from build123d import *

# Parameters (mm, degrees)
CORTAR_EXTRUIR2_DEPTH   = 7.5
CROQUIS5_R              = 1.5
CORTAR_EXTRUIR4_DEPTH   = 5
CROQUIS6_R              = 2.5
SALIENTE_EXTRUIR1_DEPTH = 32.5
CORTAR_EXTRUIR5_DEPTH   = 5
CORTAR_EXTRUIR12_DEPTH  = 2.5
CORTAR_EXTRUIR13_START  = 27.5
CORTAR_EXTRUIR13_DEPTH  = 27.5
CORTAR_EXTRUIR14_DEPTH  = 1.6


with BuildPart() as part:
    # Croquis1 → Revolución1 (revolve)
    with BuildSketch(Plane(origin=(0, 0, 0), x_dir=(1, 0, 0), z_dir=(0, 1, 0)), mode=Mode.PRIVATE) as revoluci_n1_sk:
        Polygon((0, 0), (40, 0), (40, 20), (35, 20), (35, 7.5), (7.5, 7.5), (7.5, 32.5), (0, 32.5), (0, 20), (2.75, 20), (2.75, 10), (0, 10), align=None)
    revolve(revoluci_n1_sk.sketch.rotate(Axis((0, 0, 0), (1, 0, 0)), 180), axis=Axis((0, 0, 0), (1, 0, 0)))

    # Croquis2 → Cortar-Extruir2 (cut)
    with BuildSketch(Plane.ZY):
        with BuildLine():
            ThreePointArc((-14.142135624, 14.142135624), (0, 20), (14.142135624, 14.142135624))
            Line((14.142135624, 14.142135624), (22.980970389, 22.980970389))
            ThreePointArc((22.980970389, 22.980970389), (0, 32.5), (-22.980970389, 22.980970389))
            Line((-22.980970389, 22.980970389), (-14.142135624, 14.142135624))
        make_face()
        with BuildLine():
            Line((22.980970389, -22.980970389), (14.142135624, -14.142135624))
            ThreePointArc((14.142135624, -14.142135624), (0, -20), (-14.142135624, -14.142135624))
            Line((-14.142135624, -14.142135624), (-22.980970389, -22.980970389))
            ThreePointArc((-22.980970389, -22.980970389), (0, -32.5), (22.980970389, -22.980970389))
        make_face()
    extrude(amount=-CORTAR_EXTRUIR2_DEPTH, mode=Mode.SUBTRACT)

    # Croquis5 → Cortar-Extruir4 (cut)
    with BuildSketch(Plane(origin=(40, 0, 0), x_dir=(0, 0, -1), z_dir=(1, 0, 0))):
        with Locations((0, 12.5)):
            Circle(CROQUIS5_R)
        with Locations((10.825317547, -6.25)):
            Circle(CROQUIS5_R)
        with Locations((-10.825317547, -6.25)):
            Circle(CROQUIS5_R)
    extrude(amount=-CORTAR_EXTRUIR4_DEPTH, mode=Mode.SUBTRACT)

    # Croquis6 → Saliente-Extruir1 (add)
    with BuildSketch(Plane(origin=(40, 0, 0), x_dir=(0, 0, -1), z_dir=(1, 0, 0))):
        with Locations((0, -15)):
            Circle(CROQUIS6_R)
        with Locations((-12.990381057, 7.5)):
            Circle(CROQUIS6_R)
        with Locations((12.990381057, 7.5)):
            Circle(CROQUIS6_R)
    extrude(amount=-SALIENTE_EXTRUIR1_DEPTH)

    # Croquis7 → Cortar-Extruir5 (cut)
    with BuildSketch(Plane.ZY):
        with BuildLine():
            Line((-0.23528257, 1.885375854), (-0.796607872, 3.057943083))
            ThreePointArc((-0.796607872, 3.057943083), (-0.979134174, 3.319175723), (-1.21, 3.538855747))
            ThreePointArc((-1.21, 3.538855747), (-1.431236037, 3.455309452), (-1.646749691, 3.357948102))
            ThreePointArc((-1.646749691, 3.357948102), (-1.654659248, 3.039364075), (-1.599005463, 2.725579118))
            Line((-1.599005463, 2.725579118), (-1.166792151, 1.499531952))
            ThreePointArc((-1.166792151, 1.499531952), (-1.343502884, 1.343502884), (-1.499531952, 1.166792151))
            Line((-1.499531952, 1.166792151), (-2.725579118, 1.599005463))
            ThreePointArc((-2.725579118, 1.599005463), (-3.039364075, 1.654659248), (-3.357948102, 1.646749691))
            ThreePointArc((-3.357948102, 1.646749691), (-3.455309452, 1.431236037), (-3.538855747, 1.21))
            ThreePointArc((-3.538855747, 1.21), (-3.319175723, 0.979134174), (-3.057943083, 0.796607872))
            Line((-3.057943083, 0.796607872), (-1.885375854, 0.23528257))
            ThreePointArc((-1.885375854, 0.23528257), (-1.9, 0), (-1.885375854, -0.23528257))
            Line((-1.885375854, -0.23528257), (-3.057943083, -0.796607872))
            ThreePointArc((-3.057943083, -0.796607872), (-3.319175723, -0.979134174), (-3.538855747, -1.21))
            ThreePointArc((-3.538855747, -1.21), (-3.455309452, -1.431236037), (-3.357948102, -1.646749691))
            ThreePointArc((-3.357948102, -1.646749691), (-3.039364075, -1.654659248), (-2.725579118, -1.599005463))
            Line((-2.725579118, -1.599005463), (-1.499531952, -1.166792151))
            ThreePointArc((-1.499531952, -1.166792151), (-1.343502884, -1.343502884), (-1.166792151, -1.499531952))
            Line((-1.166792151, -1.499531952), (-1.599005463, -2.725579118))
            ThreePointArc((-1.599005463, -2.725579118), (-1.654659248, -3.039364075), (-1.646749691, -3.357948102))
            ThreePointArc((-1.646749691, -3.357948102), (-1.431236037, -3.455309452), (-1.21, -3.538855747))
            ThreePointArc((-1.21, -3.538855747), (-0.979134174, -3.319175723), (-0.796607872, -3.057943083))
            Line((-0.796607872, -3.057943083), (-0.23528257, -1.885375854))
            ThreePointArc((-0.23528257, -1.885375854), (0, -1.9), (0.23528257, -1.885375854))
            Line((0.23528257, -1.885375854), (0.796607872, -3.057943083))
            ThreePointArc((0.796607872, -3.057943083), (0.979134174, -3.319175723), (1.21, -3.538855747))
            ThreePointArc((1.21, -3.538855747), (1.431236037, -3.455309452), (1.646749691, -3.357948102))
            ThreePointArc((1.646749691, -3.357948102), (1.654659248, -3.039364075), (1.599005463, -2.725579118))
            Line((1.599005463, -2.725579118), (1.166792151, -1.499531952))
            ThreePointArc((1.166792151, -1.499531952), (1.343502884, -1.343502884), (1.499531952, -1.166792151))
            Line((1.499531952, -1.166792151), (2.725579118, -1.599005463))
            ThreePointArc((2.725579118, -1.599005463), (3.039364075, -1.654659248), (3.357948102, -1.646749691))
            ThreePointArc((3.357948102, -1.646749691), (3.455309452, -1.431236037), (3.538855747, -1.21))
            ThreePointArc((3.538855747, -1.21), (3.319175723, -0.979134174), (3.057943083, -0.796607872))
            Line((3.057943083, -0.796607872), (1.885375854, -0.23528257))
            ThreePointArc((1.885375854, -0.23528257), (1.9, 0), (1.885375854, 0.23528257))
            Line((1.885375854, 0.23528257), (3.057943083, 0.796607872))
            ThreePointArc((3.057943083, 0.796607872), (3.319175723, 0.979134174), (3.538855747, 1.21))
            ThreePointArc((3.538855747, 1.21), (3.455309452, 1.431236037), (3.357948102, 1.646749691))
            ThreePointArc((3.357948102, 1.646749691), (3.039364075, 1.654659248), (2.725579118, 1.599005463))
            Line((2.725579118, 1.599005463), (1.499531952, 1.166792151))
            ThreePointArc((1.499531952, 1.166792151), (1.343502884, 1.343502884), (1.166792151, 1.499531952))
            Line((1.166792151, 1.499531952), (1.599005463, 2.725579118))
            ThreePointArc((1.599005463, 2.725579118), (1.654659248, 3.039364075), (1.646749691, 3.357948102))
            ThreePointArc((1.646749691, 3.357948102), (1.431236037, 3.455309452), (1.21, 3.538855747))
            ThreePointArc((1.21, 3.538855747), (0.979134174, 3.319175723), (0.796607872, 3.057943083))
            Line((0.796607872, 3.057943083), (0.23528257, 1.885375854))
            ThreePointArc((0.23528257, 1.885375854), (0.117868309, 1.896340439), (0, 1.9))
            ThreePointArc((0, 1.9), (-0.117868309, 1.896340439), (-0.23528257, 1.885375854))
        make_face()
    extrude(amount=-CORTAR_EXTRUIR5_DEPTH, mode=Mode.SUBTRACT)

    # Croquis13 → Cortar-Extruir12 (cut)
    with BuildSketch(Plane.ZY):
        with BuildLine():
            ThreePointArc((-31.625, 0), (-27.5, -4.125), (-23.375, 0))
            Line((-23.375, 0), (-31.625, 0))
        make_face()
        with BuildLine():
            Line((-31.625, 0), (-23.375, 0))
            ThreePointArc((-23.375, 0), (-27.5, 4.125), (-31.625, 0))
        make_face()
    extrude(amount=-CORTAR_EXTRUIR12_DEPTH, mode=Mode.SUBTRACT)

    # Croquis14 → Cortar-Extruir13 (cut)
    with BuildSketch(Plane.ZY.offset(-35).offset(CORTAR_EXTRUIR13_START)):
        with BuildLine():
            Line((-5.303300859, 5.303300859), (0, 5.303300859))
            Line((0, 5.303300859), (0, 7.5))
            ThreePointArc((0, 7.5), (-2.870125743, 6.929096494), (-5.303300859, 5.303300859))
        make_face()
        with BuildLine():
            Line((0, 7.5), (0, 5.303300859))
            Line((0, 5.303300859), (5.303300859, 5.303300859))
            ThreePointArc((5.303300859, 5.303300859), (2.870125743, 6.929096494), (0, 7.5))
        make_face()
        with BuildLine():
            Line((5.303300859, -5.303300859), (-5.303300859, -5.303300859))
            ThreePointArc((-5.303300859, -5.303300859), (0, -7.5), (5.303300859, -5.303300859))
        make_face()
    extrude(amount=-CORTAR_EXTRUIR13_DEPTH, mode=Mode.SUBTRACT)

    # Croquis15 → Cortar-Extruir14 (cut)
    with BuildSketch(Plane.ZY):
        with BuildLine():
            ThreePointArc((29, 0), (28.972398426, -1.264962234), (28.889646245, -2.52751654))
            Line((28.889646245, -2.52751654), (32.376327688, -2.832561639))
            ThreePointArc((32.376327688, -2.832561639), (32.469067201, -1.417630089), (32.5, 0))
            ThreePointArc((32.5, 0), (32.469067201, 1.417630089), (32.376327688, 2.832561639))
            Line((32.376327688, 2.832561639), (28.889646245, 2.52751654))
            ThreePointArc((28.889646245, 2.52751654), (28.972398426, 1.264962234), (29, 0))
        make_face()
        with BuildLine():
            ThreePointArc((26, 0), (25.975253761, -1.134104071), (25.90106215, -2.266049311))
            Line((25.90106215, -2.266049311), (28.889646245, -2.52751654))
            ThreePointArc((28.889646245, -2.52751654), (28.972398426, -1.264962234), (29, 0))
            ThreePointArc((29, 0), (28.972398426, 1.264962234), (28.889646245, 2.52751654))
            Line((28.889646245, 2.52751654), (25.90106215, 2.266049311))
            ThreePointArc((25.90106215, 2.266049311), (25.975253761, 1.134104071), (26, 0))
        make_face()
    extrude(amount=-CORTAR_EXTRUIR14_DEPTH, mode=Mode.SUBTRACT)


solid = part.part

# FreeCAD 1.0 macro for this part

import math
import FreeCAD as App
import Part
import Sketcher
from FreeCAD import Vector
Q = App.Units.Quantity


def add_polygon(sketch, points):
    """Adds a closed chain of lines whose ends are joined by coincident constraints."""
    first, n = sketch.GeometryCount, len(points)
    for a, b in zip(points, points[1:] + points[:1]):
        sketch.addGeometry(Part.LineSegment(App.Vector(*a, 0), App.Vector(*b, 0)), False)
    for i in range(n):
        sketch.addConstraint(Sketcher.Constraint("Coincident", first + i, 2, first + (i + 1) % n, 1))

doc = App.newDocument("Part")
params = doc.addObject("Spreadsheet::Sheet", "Params")
for row, (alias, value) in enumerate([
    ("sketch1_width", "40 mm"),
    ("sketch1_width2", "5 mm"),
    ("sketch1_height", "20 mm"),
    ("sketch1_height2", "25 mm"),
    ("sketch1_width3", "27.5 mm"),
    ("revolution_angle", "360 deg"),
    ("sketch2_radius", "20 mm"),
    ("sketch2_radius2", "32.5 mm"),
    ("pocket1_length", "7.5 mm"),
    ("sketch3_diameter", "3 mm"),
    ("pocket2_length", "5 mm"),
    ("sketch4_diameter", "5 mm"),
    ("pad1_length", "32.5 mm"),
    ("sketch5_radius", "1.9 mm"),
    ("sketch5_radius2", "3.74 mm"),
    ("sketch5_length", "1.3 mm"),
    ("pocket3_length", "5 mm"),
    ("sketch6_diameter", "8.25 mm"),
    ("pocket4_length", "2.5 mm"),
    ("sketch7_radius", "7.5 mm"),
    ("pocket5_length", "27.5 mm"),
    ("sketch8_radius", "26 mm"),
    ("sketch8_radius2", "32.5 mm"),
    ("sketch8_length", "3 mm"),
    ("pocket6_length", "1.6 mm"),
], start=1):
    params.set(f"A{row}", alias)
    params.set(f"B{row}", "=" + value)
    params.setAlias(f"B{row}", alias)

body = doc.addObject("PartDesign::Body", "Body")

# Sketch on XZ plane
sketch1 = body.newObject("Sketcher::SketchObject", "Sketch")
sketch1.AttachmentSupport = (doc.getObject("XZ_Plane"), [""])
sketch1.MapMode = "FlatFace"
add_polygon(sketch1, [(0, 0), (40, 0), (40, -20), (35, -20), (35, -7.5), (7.5, -7.5), (7.5, -32.5), (0, -32.5), (0, -20), (2.8, -20), (2.8, -10), (0, -10)])  # lines 0-11
sketch1.addConstraint(Sketcher.Constraint("Horizontal", 0))
sketch1.addConstraint(Sketcher.Constraint("Vertical", 1))
sketch1.addConstraint(Sketcher.Constraint("Horizontal", 2))
sketch1.addConstraint(Sketcher.Constraint("Vertical", 3))
sketch1.addConstraint(Sketcher.Constraint("Horizontal", 4))
sketch1.addConstraint(Sketcher.Constraint("Vertical", 5))
sketch1.addConstraint(Sketcher.Constraint("Horizontal", 6))
sketch1.addConstraint(Sketcher.Constraint("Vertical", 7))
sketch1.addConstraint(Sketcher.Constraint("Horizontal", 8))
sketch1.addConstraint(Sketcher.Constraint("Vertical", 9))
sketch1.addConstraint(Sketcher.Constraint("Horizontal", 10))
sketch1.addConstraint(Sketcher.Constraint("Vertical", 11))
sketch1.addConstraint(Sketcher.Constraint("Coincident", 11, 2, -1, 1))
sketch1.addConstraint(Sketcher.Constraint("PointOnObject", 6, 2, -2))
sketch1.addConstraint(Sketcher.Constraint("Horizontal", 2, 2, 7, 2))
sketch1.addConstraint(Sketcher.Constraint("Equal", 3, 7))
sketch1.addConstraint(Sketcher.Constraint("Equal", 9, 11))
sketch1.addConstraint(Sketcher.Constraint("DistanceX", 0, 1, 0, 2, 40.0))
sketch1.addConstraint(Sketcher.Constraint("DistanceX", 2, 2, 2, 1, 5.0))
sketch1.addConstraint(Sketcher.Constraint("DistanceY", 1, 2, 1, 1, 20.0))
sketch1.addConstraint(Sketcher.Constraint("DistanceY", 5, 2, 5, 1, 25.0))
sketch1.addConstraint(Sketcher.Constraint("DistanceX", 4, 2, 4, 1, 27.5))
sketch1.addConstraint(Sketcher.Constraint("DistanceX", 8, 1, 8, 2, 2.75))
sketch1.setExpression("Constraints[29]", "Params.sketch1_width")
sketch1.setExpression("Constraints[30]", "Params.sketch1_width2")
sketch1.setExpression("Constraints[31]", "Params.sketch1_height")
sketch1.setExpression("Constraints[32]", "Params.sketch1_height2")
sketch1.setExpression("Constraints[33]", "Params.sketch1_width3")
revolution = body.newObject("PartDesign::Revolution", "Revolution")
revolution.Profile = sketch1
revolution.ReferenceAxis = (sketch1, ["H_Axis"])
revolution.setExpression("Angle", "Params.revolution_angle")

# Sketch on YZ plane
sketch2 = body.newObject("Sketcher::SketchObject", "Sketch001")
sketch2.AttachmentSupport = (doc.getObject("YZ_Plane"), [""])
sketch2.MapMode = "FlatFace"
sketch2.addGeometry(Part.ArcOfCircle(Part.Circle(Vector(0, 0, 0), Vector(0, 0, 1), 20), math.radians(-45), math.radians(45)), False)
sketch2.addGeometry(Part.LineSegment(Vector(14, 14, 0), Vector(23, 23, 0)), False)
sketch2.addGeometry(Part.ArcOfCircle(Part.Circle(Vector(0, 0, 0), Vector(0, 0, 1), 33), math.radians(-45), math.radians(45)), False)
sketch2.addGeometry(Part.LineSegment(Vector(23, -23, 0), Vector(14, -14, 0)), False)
sketch2.addGeometry(Part.LineSegment(Vector(-23, 23, 0), Vector(-14, 14, 0)), False)
sketch2.addGeometry(Part.ArcOfCircle(Part.Circle(Vector(0, 0, 0), Vector(0, 0, 1), 20), math.radians(135), math.radians(225)), False)
sketch2.addGeometry(Part.LineSegment(Vector(-14, -14, 0), Vector(-23, -23, 0)), False)
sketch2.addGeometry(Part.ArcOfCircle(Part.Circle(Vector(0, 0, 0), Vector(0, 0, 1), 33), math.radians(135), math.radians(225)), False)
sketch2.addConstraint(Sketcher.Constraint("Coincident", 0, 2, 1, 1))
sketch2.addConstraint(Sketcher.Constraint("Coincident", 1, 2, 2, 2))
sketch2.addConstraint(Sketcher.Constraint("Coincident", 2, 1, 3, 1))
sketch2.addConstraint(Sketcher.Constraint("Coincident", 3, 2, 0, 1))
sketch2.addConstraint(Sketcher.Constraint("Coincident", 4, 2, 5, 1))
sketch2.addConstraint(Sketcher.Constraint("Coincident", 5, 2, 6, 1))
sketch2.addConstraint(Sketcher.Constraint("Coincident", 6, 2, 7, 2))
sketch2.addConstraint(Sketcher.Constraint("Coincident", 7, 1, 4, 1))
sketch2.addConstraint(Sketcher.Constraint("Coincident", 0, 3, -1, 1))
sketch2.addConstraint(Sketcher.Constraint("Coincident", 2, 3, -1, 1))
sketch2.addConstraint(Sketcher.Constraint("Coincident", 5, 3, -1, 1))
sketch2.addConstraint(Sketcher.Constraint("Coincident", 7, 3, -1, 1))
sketch2.addConstraint(Sketcher.Constraint("Equal", 0, 5))
sketch2.addConstraint(Sketcher.Constraint("Equal", 2, 7))
sketch2.addConstraint(Sketcher.Constraint("Perpendicular", 1, 3))
sketch2.addConstraint(Sketcher.Constraint("Parallel", 3, 4))
sketch2.addConstraint(Sketcher.Constraint("Perpendicular", 4, 6))
sketch2.addConstraint(Sketcher.Constraint("Horizontal", 0, 2, 4, 2))
sketch2.addConstraint(Sketcher.Constraint("Horizontal", 3, 2, 5, 2))
sketch2.addConstraint(Sketcher.Constraint("Horizontal", 2, 1, 6, 2))
sketch2.addConstraint(Sketcher.Constraint("Vertical", 1, 2, 2, 1))
sketch2.addConstraint(Sketcher.Constraint("Radius", 0, 20.0))
sketch2.addConstraint(Sketcher.Constraint("Radius", 2, 32.5))
sketch2.addConstraint(Sketcher.Constraint("DistanceX", -1, 1, 1, 2, 22.98097))
sketch2.setExpression("Constraints[21]", "Params.sketch2_radius")
sketch2.setExpression("Constraints[22]", "Params.sketch2_radius2")
pocket1 = body.newObject("PartDesign::Pocket", "Pocket")
pocket1.Profile = sketch2
pocket1.setExpression("Length", "Params.pocket1_length")
pocket1.Reversed = True

# Sketch on YZ plane
sketch3 = body.newObject("Sketcher::SketchObject", "Sketch002")
sketch3.AttachmentSupport = (doc.getObject("YZ_Plane"), [""])
sketch3.MapMode = "FlatFace"
sketch3.AttachmentOffset = App.Placement(Vector(0, 0, 40), App.Rotation())
sketch3.addGeometry(Part.Circle(Vector(12.5, 0, 0), Vector(0, 0, 1), 1.5), False)
sketch3.addGeometry(Part.Circle(Vector(-6.2, -10.8, 0), Vector(0, 0, 1), 1.5), False)
sketch3.addGeometry(Part.Circle(Vector(-6.2, 10.8, 0), Vector(0, 0, 1), 1.5), False)
sketch3.addConstraint(Sketcher.Constraint("Equal", 0, 1))
sketch3.addConstraint(Sketcher.Constraint("Equal", 1, 2))
sketch3.addConstraint(Sketcher.Constraint("Symmetric", 1, 3, 2, 3, -1))
sketch3.addConstraint(Sketcher.Constraint("PointOnObject", 0, 3, -1))
sketch3.addConstraint(Sketcher.Constraint("Diameter", 0, 3.0))
sketch3.addConstraint(Sketcher.Constraint("DistanceX", -1, 1, 0, 3, 12.5))
sketch3.addConstraint(Sketcher.Constraint("DistanceX", 1, 3, -1, 1, 6.25))
sketch3.addConstraint(Sketcher.Constraint("DistanceY", 1, 3, -1, 1, 10.825318))
sketch3.setExpression("Constraints[4]", "Params.sketch3_diameter")
pocket2 = body.newObject("PartDesign::Pocket", "Pocket001")
pocket2.Profile = sketch3
pocket2.setExpression("Length", "Params.pocket2_length")

# Sketch on YZ plane
sketch4 = body.newObject("Sketcher::SketchObject", "Sketch003")
sketch4.AttachmentSupport = (doc.getObject("YZ_Plane"), [""])
sketch4.MapMode = "FlatFace"
sketch4.AttachmentOffset = App.Placement(Vector(0, 0, 40), App.Rotation())
sketch4.addGeometry(Part.Circle(Vector(-15, 0, 0), Vector(0, 0, 1), 2.5), False)
sketch4.addGeometry(Part.Circle(Vector(7.5, 13, 0), Vector(0, 0, 1), 2.5), False)
sketch4.addGeometry(Part.Circle(Vector(7.5, -13, 0), Vector(0, 0, 1), 2.5), False)
sketch4.addConstraint(Sketcher.Constraint("Equal", 0, 1))
sketch4.addConstraint(Sketcher.Constraint("Equal", 1, 2))
sketch4.addConstraint(Sketcher.Constraint("Symmetric", 1, 3, 2, 3, -1))
sketch4.addConstraint(Sketcher.Constraint("PointOnObject", 0, 3, -1))
sketch4.addConstraint(Sketcher.Constraint("Diameter", 0, 5.0))
sketch4.addConstraint(Sketcher.Constraint("DistanceX", 0, 3, -1, 1, 15.0))
sketch4.addConstraint(Sketcher.Constraint("DistanceX", -1, 1, 1, 3, 7.5))
sketch4.addConstraint(Sketcher.Constraint("DistanceY", -1, 1, 1, 3, 12.990381))
sketch4.setExpression("Constraints[4]", "Params.sketch4_diameter")
pad1 = body.newObject("PartDesign::Pad", "Pad")
pad1.Profile = sketch4
pad1.setExpression("Length", "Params.pad1_length")
pad1.Reversed = True

# Sketch on YZ plane
sketch5 = body.newObject("Sketcher::SketchObject", "Sketch004")
sketch5.AttachmentSupport = (doc.getObject("YZ_Plane"), [""])
sketch5.MapMode = "FlatFace"
sketch5.addGeometry(Part.LineSegment(Vector(1.89, -0.24, 0), Vector(3.06, -0.8, 0)), False)
sketch5.addGeometry(Part.ArcOfCircle(Part.Circle(Vector(2.28, -2.19, 0), Vector(0, 0, 1), 1.59), math.radians(38), math.radians(61)), False)
sketch5.addGeometry(Part.ArcOfCircle(Part.Circle(Vector(0, 0, 0), Vector(0, 0, 1), 3.74), math.radians(-26.12), math.radians(-18.88)), False)
sketch5.addGeometry(Part.ArcOfCircle(Part.Circle(Vector(3.16, -0.07, 0), Vector(0, 0, 1), 1.59), math.radians(-106), math.radians(-83)), False)
sketch5.addGeometry(Part.LineSegment(Vector(2.73, -1.6, 0), Vector(1.5, -1.17, 0)), False)
sketch5.addGeometry(Part.ArcOfCircle(Part.Circle(Vector(0, 0, 0), Vector(0, 0, 1), 1.9), math.radians(-52.11), math.radians(-37.89)), False)
sketch5.addGeometry(Part.LineSegment(Vector(1.17, -1.5, 0), Vector(1.6, -2.73, 0)), False)
sketch5.addGeometry(Part.ArcOfCircle(Part.Circle(Vector(0.07, -3.16, 0), Vector(0, 0, 1), 1.59), math.radians(-7), math.radians(16)), False)
sketch5.addGeometry(Part.ArcOfCircle(Part.Circle(Vector(0, 0, 0), Vector(0, 0, 1), 3.74), math.radians(-71.12), math.radians(-63.88)), False)
sketch5.addGeometry(Part.ArcOfCircle(Part.Circle(Vector(2.19, -2.28, 0), Vector(0, 0, 1), 1.59), math.radians(-151), math.radians(-128)), False)
sketch5.addGeometry(Part.LineSegment(Vector(0.8, -3.06, 0), Vector(0.24, -1.89, 0)), False)
sketch5.addGeometry(Part.ArcOfCircle(Part.Circle(Vector(0, 0, 0), Vector(0, 0, 1), 1.9), math.radians(-97.11), math.radians(-82.89)), False)
sketch5.addGeometry(Part.LineSegment(Vector(-0.24, -1.89, 0), Vector(-0.8, -3.06, 0)), False)
sketch5.addGeometry(Part.ArcOfCircle(Part.Circle(Vector(-2.19, -2.28, 0), Vector(0, 0, 1), 1.59), math.radians(-52), math.radians(-29)), False)
sketch5.addGeometry(Part.ArcOfCircle(Part.Circle(Vector(0, 0, 0), Vector(0, 0, 1), 3.74), math.radians(-116.12), math.radians(-108.88)), False)
sketch5.addGeometry(Part.ArcOfCircle(Part.Circle(Vector(-0.07, -3.16, 0), Vector(0, 0, 1), 1.59), math.radians(164), math.radians(187)), False)
sketch5.addGeometry(Part.LineSegment(Vector(-1.6, -2.73, 0), Vector(-1.17, -1.5, 0)), False)
sketch5.addGeometry(Part.ArcOfCircle(Part.Circle(Vector(0, 0, 0), Vector(0, 0, 1), 1.9), math.radians(-142.11), math.radians(-127.89)), False)
sketch5.addGeometry(Part.LineSegment(Vector(-1.5, -1.17, 0), Vector(-2.73, -1.6, 0)), False)
sketch5.addGeometry(Part.ArcOfCircle(Part.Circle(Vector(-3.16, -0.07, 0), Vector(0, 0, 1), 1.59), math.radians(-97), math.radians(-74)), False)
sketch5.addGeometry(Part.ArcOfCircle(Part.Circle(Vector(0, 0, 0), Vector(0, 0, 1), 3.74), math.radians(-161.12), math.radians(-153.88)), False)
sketch5.addGeometry(Part.ArcOfCircle(Part.Circle(Vector(-2.28, -2.19, 0), Vector(0, 0, 1), 1.59), math.radians(119), math.radians(142)), False)
sketch5.addGeometry(Part.LineSegment(Vector(-3.06, -0.8, 0), Vector(-1.89, -0.24, 0)), False)
sketch5.addGeometry(Part.ArcOfCircle(Part.Circle(Vector(0, 0, 0), Vector(0, 0, 1), 1.9), math.radians(172.89), math.radians(187.11)), False)
sketch5.addGeometry(Part.LineSegment(Vector(-1.89, 0.24, 0), Vector(-3.06, 0.8, 0)), False)
sketch5.addGeometry(Part.ArcOfCircle(Part.Circle(Vector(-2.28, 2.19, 0), Vector(0, 0, 1), 1.59), math.radians(-142), math.radians(-119)), False)
sketch5.addGeometry(Part.ArcOfCircle(Part.Circle(Vector(0, 0, 0), Vector(0, 0, 1), 3.74), math.radians(153.88), math.radians(161.12)), False)
sketch5.addGeometry(Part.ArcOfCircle(Part.Circle(Vector(-3.16, 0.07, 0), Vector(0, 0, 1), 1.59), math.radians(74), math.radians(97)), False)
sketch5.addGeometry(Part.LineSegment(Vector(-2.73, 1.6, 0), Vector(-1.5, 1.17, 0)), False)
sketch5.addGeometry(Part.ArcOfCircle(Part.Circle(Vector(0, 0, 0), Vector(0, 0, 1), 1.9), math.radians(127.89), math.radians(142.11)), False)
sketch5.addGeometry(Part.LineSegment(Vector(-1.17, 1.5, 0), Vector(-1.6, 2.73, 0)), False)
sketch5.addGeometry(Part.ArcOfCircle(Part.Circle(Vector(-0.07, 3.16, 0), Vector(0, 0, 1), 1.59), math.radians(173), math.radians(196)), False)
sketch5.addGeometry(Part.ArcOfCircle(Part.Circle(Vector(0, 0, 0), Vector(0, 0, 1), 3.74), math.radians(108.88), math.radians(116.12)), False)
sketch5.addGeometry(Part.ArcOfCircle(Part.Circle(Vector(-2.19, 2.28, 0), Vector(0, 0, 1), 1.59), math.radians(29), math.radians(52)), False)
sketch5.addGeometry(Part.LineSegment(Vector(-0.8, 3.06, 0), Vector(-0.24, 1.89, 0)), False)
sketch5.addGeometry(Part.ArcOfCircle(Part.Circle(Vector(0, 0, 0), Vector(0, 0, 1), 1.9), math.radians(82.89), math.radians(97.11)), False)
sketch5.addGeometry(Part.LineSegment(Vector(0.24, 1.89, 0), Vector(0.8, 3.06, 0)), False)
sketch5.addGeometry(Part.ArcOfCircle(Part.Circle(Vector(2.19, 2.28, 0), Vector(0, 0, 1), 1.59), math.radians(128), math.radians(151)), False)
sketch5.addGeometry(Part.ArcOfCircle(Part.Circle(Vector(0, 0, 0), Vector(0, 0, 1), 3.74), math.radians(63.88), math.radians(71.12)), False)
sketch5.addGeometry(Part.ArcOfCircle(Part.Circle(Vector(0.07, 3.16, 0), Vector(0, 0, 1), 1.59), math.radians(-16), math.radians(7)), False)
sketch5.addGeometry(Part.LineSegment(Vector(1.6, 2.73, 0), Vector(1.17, 1.5, 0)), False)
sketch5.addGeometry(Part.ArcOfCircle(Part.Circle(Vector(0, 0, 0), Vector(0, 0, 1), 1.9), math.radians(37.89), math.radians(52.11)), False)
sketch5.addGeometry(Part.LineSegment(Vector(1.5, 1.17, 0), Vector(2.73, 1.6, 0)), False)
sketch5.addGeometry(Part.ArcOfCircle(Part.Circle(Vector(3.16, 0.07, 0), Vector(0, 0, 1), 1.59), math.radians(83), math.radians(106)), False)
sketch5.addGeometry(Part.ArcOfCircle(Part.Circle(Vector(0, 0, 0), Vector(0, 0, 1), 3.74), math.radians(18.88), math.radians(26.12)), False)
sketch5.addGeometry(Part.ArcOfCircle(Part.Circle(Vector(2.28, 2.19, 0), Vector(0, 0, 1), 1.59), math.radians(-61), math.radians(-38)), False)
sketch5.addGeometry(Part.LineSegment(Vector(3.06, 0.8, 0), Vector(1.89, 0.24, 0)), False)
sketch5.addGeometry(Part.ArcOfCircle(Part.Circle(Vector(0, 0, 0), Vector(0, 0, 1), 1.9), math.radians(0), math.radians(7.11)), False)
sketch5.addGeometry(Part.ArcOfCircle(Part.Circle(Vector(0, 0, 0), Vector(0, 0, 1), 1.9), math.radians(-7.11), math.radians(0)), False)
sketch5.addConstraint(Sketcher.Constraint("Coincident", 0, 2, 1, 2))
sketch5.addConstraint(Sketcher.Constraint("Coincident", 1, 1, 2, 2))
sketch5.addConstraint(Sketcher.Constraint("Coincident", 2, 1, 3, 2))
sketch5.addConstraint(Sketcher.Constraint("Coincident", 3, 1, 4, 1))
sketch5.addConstraint(Sketcher.Constraint("Coincident", 4, 2, 5, 2))
sketch5.addConstraint(Sketcher.Constraint("Coincident", 5, 1, 6, 1))
sketch5.addConstraint(Sketcher.Constraint("Coincident", 6, 2, 7, 2))
sketch5.addConstraint(Sketcher.Constraint("Coincident", 7, 1, 8, 2))
sketch5.addConstraint(Sketcher.Constraint("Coincident", 8, 1, 9, 2))
sketch5.addConstraint(Sketcher.Constraint("Coincident", 9, 1, 10, 1))
sketch5.addConstraint(Sketcher.Constraint("Coincident", 10, 2, 11, 2))
sketch5.addConstraint(Sketcher.Constraint("Coincident", 11, 1, 12, 1))
sketch5.addConstraint(Sketcher.Constraint("Coincident", 12, 2, 13, 2))
sketch5.addConstraint(Sketcher.Constraint("Coincident", 13, 1, 14, 2))
sketch5.addConstraint(Sketcher.Constraint("Coincident", 14, 1, 15, 2))
sketch5.addConstraint(Sketcher.Constraint("Coincident", 15, 1, 16, 1))
sketch5.addConstraint(Sketcher.Constraint("Coincident", 16, 2, 17, 2))
sketch5.addConstraint(Sketcher.Constraint("Coincident", 17, 1, 18, 1))
sketch5.addConstraint(Sketcher.Constraint("Coincident", 18, 2, 19, 2))
sketch5.addConstraint(Sketcher.Constraint("Coincident", 19, 1, 20, 2))
sketch5.addConstraint(Sketcher.Constraint("Coincident", 20, 1, 21, 2))
sketch5.addConstraint(Sketcher.Constraint("Coincident", 21, 1, 22, 1))
sketch5.addConstraint(Sketcher.Constraint("Coincident", 22, 2, 23, 2))
sketch5.addConstraint(Sketcher.Constraint("Coincident", 23, 1, 24, 1))
sketch5.addConstraint(Sketcher.Constraint("Coincident", 24, 2, 25, 2))
sketch5.addConstraint(Sketcher.Constraint("Coincident", 25, 1, 26, 2))
sketch5.addConstraint(Sketcher.Constraint("Coincident", 26, 1, 27, 2))
sketch5.addConstraint(Sketcher.Constraint("Coincident", 27, 1, 28, 1))
sketch5.addConstraint(Sketcher.Constraint("Coincident", 28, 2, 29, 2))
sketch5.addConstraint(Sketcher.Constraint("Coincident", 29, 1, 30, 1))
sketch5.addConstraint(Sketcher.Constraint("Coincident", 30, 2, 31, 2))
sketch5.addConstraint(Sketcher.Constraint("Coincident", 31, 1, 32, 2))
sketch5.addConstraint(Sketcher.Constraint("Coincident", 32, 1, 33, 2))
sketch5.addConstraint(Sketcher.Constraint("Coincident", 33, 1, 34, 1))
sketch5.addConstraint(Sketcher.Constraint("Coincident", 34, 2, 35, 2))
sketch5.addConstraint(Sketcher.Constraint("Coincident", 35, 1, 36, 1))
sketch5.addConstraint(Sketcher.Constraint("Coincident", 36, 2, 37, 2))
sketch5.addConstraint(Sketcher.Constraint("Coincident", 37, 1, 38, 2))
sketch5.addConstraint(Sketcher.Constraint("Coincident", 38, 1, 39, 2))
sketch5.addConstraint(Sketcher.Constraint("Coincident", 39, 1, 40, 1))
sketch5.addConstraint(Sketcher.Constraint("Coincident", 40, 2, 41, 2))
sketch5.addConstraint(Sketcher.Constraint("Coincident", 41, 1, 42, 1))
sketch5.addConstraint(Sketcher.Constraint("Coincident", 42, 2, 43, 2))
sketch5.addConstraint(Sketcher.Constraint("Coincident", 43, 1, 44, 2))
sketch5.addConstraint(Sketcher.Constraint("Coincident", 44, 1, 45, 2))
sketch5.addConstraint(Sketcher.Constraint("Coincident", 45, 1, 46, 1))
sketch5.addConstraint(Sketcher.Constraint("Coincident", 46, 2, 47, 2))
sketch5.addConstraint(Sketcher.Constraint("Tangent", 47, 1, 48, 2))
sketch5.addConstraint(Sketcher.Constraint("Coincident", 48, 1, 0, 1))
sketch5.addConstraint(Sketcher.Constraint("Coincident", 2, 3, -1, 1))
sketch5.addConstraint(Sketcher.Constraint("Coincident", 5, 3, -1, 1))
sketch5.addConstraint(Sketcher.Constraint("Coincident", 8, 3, -1, 1))
sketch5.addConstraint(Sketcher.Constraint("Coincident", 11, 3, -1, 1))
sketch5.addConstraint(Sketcher.Constraint("Coincident", 14, 3, -1, 1))
sketch5.addConstraint(Sketcher.Constraint("Coincident", 17, 3, -1, 1))
sketch5.addConstraint(Sketcher.Constraint("Coincident", 20, 3, -1, 1))
sketch5.addConstraint(Sketcher.Constraint("Coincident", 23, 3, -1, 1))
sketch5.addConstraint(Sketcher.Constraint("Coincident", 26, 3, -1, 1))
sketch5.addConstraint(Sketcher.Constraint("Coincident", 29, 3, -1, 1))
sketch5.addConstraint(Sketcher.Constraint("Coincident", 32, 3, -1, 1))
sketch5.addConstraint(Sketcher.Constraint("Coincident", 35, 3, -1, 1))
sketch5.addConstraint(Sketcher.Constraint("Coincident", 38, 3, -1, 1))
sketch5.addConstraint(Sketcher.Constraint("Coincident", 41, 3, -1, 1))
sketch5.addConstraint(Sketcher.Constraint("Coincident", 44, 3, -1, 1))
sketch5.addConstraint(Sketcher.Constraint("Coincident", 47, 3, -1, 1))
sketch5.addConstraint(Sketcher.Constraint("Equal", 1, 3))
sketch5.addConstraint(Sketcher.Constraint("Equal", 3, 7))
sketch5.addConstraint(Sketcher.Constraint("Equal", 2, 8))
sketch5.addConstraint(Sketcher.Constraint("Equal", 7, 9))
sketch5.addConstraint(Sketcher.Constraint("Equal", 5, 11))
sketch5.addConstraint(Sketcher.Constraint("Equal", 9, 13))
sketch5.addConstraint(Sketcher.Constraint("Equal", 8, 14))
sketch5.addConstraint(Sketcher.Constraint("Equal", 13, 15))
sketch5.addConstraint(Sketcher.Constraint("Equal", 11, 17))
sketch5.addConstraint(Sketcher.Constraint("Equal", 15, 19))
sketch5.addConstraint(Sketcher.Constraint("Equal", 14, 20))
sketch5.addConstraint(Sketcher.Constraint("Equal", 19, 21))
sketch5.addConstraint(Sketcher.Constraint("Equal", 17, 23))
sketch5.addConstraint(Sketcher.Constraint("Equal", 21, 25))
sketch5.addConstraint(Sketcher.Constraint("Equal", 20, 26))
sketch5.addConstraint(Sketcher.Constraint("Equal", 25, 27))
sketch5.addConstraint(Sketcher.Constraint("Equal", 23, 29))
sketch5.addConstraint(Sketcher.Constraint("Equal", 27, 31))
sketch5.addConstraint(Sketcher.Constraint("Equal", 26, 32))
sketch5.addConstraint(Sketcher.Constraint("Equal", 31, 33))
sketch5.addConstraint(Sketcher.Constraint("Equal", 29, 35))
sketch5.addConstraint(Sketcher.Constraint("Equal", 33, 37))
sketch5.addConstraint(Sketcher.Constraint("Equal", 32, 38))
sketch5.addConstraint(Sketcher.Constraint("Equal", 37, 39))
sketch5.addConstraint(Sketcher.Constraint("Equal", 35, 41))
sketch5.addConstraint(Sketcher.Constraint("Equal", 39, 43))
sketch5.addConstraint(Sketcher.Constraint("Equal", 38, 44))
sketch5.addConstraint(Sketcher.Constraint("Equal", 43, 45))
sketch5.addConstraint(Sketcher.Constraint("Equal", 41, 47))
sketch5.addConstraint(Sketcher.Constraint("Equal", 47, 48))
sketch5.addConstraint(Sketcher.Constraint("Symmetric", 1, 3, 25, 3, -1, 1))
sketch5.addConstraint(Sketcher.Constraint("Symmetric", 3, 3, 27, 3, -1, 1))
sketch5.addConstraint(Sketcher.Constraint("Symmetric", 7, 3, 31, 3, -1, 1))
sketch5.addConstraint(Sketcher.Constraint("Symmetric", 9, 3, 33, 3, -1, 1))
sketch5.addConstraint(Sketcher.Constraint("Symmetric", 13, 3, 37, 3, -1, 1))
sketch5.addConstraint(Sketcher.Constraint("Symmetric", 15, 3, 39, 3, -1, 1))
sketch5.addConstraint(Sketcher.Constraint("Symmetric", 19, 3, 43, 3, -1, 1))
sketch5.addConstraint(Sketcher.Constraint("Symmetric", 21, 3, 45, 3, -1, 1))
sketch5.addConstraint(Sketcher.Constraint("Symmetric", 9, 3, 13, 3, -2))
sketch5.addConstraint(Sketcher.Constraint("Symmetric", 7, 3, 15, 3, -2))
sketch5.addConstraint(Sketcher.Constraint("Symmetric", 3, 3, 19, 3, -2))
sketch5.addConstraint(Sketcher.Constraint("Symmetric", 1, 3, 21, 3, -2))
sketch5.addConstraint(Sketcher.Constraint("PointOnObject", 47, 1, -1))
sketch5.addConstraint(Sketcher.Constraint("Perpendicular", 0, 12))
sketch5.addConstraint(Sketcher.Constraint("Perpendicular", 4, 16))
sketch5.addConstraint(Sketcher.Constraint("Perpendicular", 6, 18))
sketch5.addConstraint(Sketcher.Constraint("Perpendicular", 10, 22))
sketch5.addConstraint(Sketcher.Constraint("Perpendicular", 12, 24))
sketch5.addConstraint(Sketcher.Constraint("Perpendicular", 16, 28))
sketch5.addConstraint(Sketcher.Constraint("Perpendicular", 18, 30))
sketch5.addConstraint(Sketcher.Constraint("Perpendicular", 22, 34))
sketch5.addConstraint(Sketcher.Constraint("Perpendicular", 24, 36))
sketch5.addConstraint(Sketcher.Constraint("Perpendicular", 28, 40))
sketch5.addConstraint(Sketcher.Constraint("Perpendicular", 30, 42))
sketch5.addConstraint(Sketcher.Constraint("Perpendicular", 34, 46))
sketch5.addConstraint(Sketcher.Constraint("Horizontal", 10, 2, 11, 1))
sketch5.addConstraint(Sketcher.Constraint("Horizontal", 9, 1, 12, 2))
sketch5.addConstraint(Sketcher.Constraint("Horizontal", 6, 2, 15, 1))
sketch5.addConstraint(Sketcher.Constraint("Horizontal", 5, 1, 16, 2))
sketch5.addConstraint(Sketcher.Constraint("Horizontal", 4, 2, 17, 1))
sketch5.addConstraint(Sketcher.Constraint("Horizontal", 0, 2, 21, 1))
sketch5.addConstraint(Sketcher.Constraint("Horizontal", 34, 2, 35, 1))
sketch5.addConstraint(Sketcher.Constraint("Horizontal", 30, 2, 39, 1))
sketch5.addConstraint(Sketcher.Constraint("Horizontal", 28, 2, 41, 1))
sketch5.addConstraint(Sketcher.Constraint("Horizontal", 24, 2, 45, 1))
sketch5.addConstraint(Sketcher.Constraint("Vertical", 22, 2, 23, 1))
sketch5.addConstraint(Sketcher.Constraint("Vertical", 18, 2, 27, 1))
sketch5.addConstraint(Sketcher.Constraint("Vertical", 16, 2, 29, 1))
sketch5.addConstraint(Sketcher.Constraint("Vertical", 12, 2, 33, 1))
sketch5.addConstraint(Sketcher.Constraint("Equal", 0, 4))
sketch5.addConstraint(Sketcher.Constraint("Equal", 4, 6))
sketch5.addConstraint(Sketcher.Constraint("Equal", 6, 10))
sketch5.addConstraint(Sketcher.Constraint("Radius", 5, 1.9))
sketch5.addConstraint(Sketcher.Constraint("Radius", 2, 3.74))
sketch5.addConstraint(Sketcher.Constraint("Distance", 0, 1.3))
sketch5.addConstraint(Sketcher.Constraint("DistanceY", 1, 1, -1, 1, 1.21))
sketch5.addConstraint(Sketcher.Constraint("DistanceX", -1, 1, 8, 1, 1.21))
sketch5.addConstraint(Sketcher.Constraint("Radius", 1, 1.593216))
sketch5.addConstraint(Sketcher.Constraint("DistanceX", -1, 1, 3, 3, 3.159311))
sketch5.addConstraint(Sketcher.Constraint("DistanceY", 7, 3, -1, 1, 3.159311))
sketch5.addConstraint(Sketcher.Constraint("DistanceX", -1, 1, 2, 1, 3.357948))
sketch5.addConstraint(Sketcher.Constraint("DistanceX", -1, 1, 3, 1, 2.725579))
sketch5.addConstraint(Sketcher.Constraint("DistanceY", 5, 1, -1, 1, 1.499532))
sketch5.addConstraint(Sketcher.Constraint("DistanceX", -1, 1, 1, 3, 2.280615))
sketch5.addConstraint(Sketcher.Constraint("DistanceX", -1, 1, 9, 3, 2.187326))
sketch5.addConstraint(Sketcher.Constraint("DistanceX", -1, 1, 0, 2, 3.057943))
sketch5.setExpression("Constraints[137]", "Params.sketch5_radius")
sketch5.setExpression("Constraints[138]", "Params.sketch5_radius2")
sketch5.setExpression("Constraints[139]", "Params.sketch5_length")
pocket3 = body.newObject("PartDesign::Pocket", "Pocket002")
pocket3.Profile = sketch5
pocket3.setExpression("Length", "Params.pocket3_length")
pocket3.Reversed = True

# Sketch on YZ plane
sketch6 = body.newObject("Sketcher::SketchObject", "Sketch005")
sketch6.AttachmentSupport = (doc.getObject("YZ_Plane"), [""])
sketch6.MapMode = "FlatFace"
sketch6.addGeometry(Part.Circle(Vector(0, -27.5, 0), Vector(0, 0, 1), 4.1), False)
sketch6.addConstraint(Sketcher.Constraint("PointOnObject", 0, 3, -2))
sketch6.addConstraint(Sketcher.Constraint("Diameter", 0, 8.25))
sketch6.addConstraint(Sketcher.Constraint("DistanceY", 0, 3, -1, 1, 27.5))
sketch6.setExpression("Constraints[1]", "Params.sketch6_diameter")
pocket4 = body.newObject("PartDesign::Pocket", "Pocket003")
pocket4.Profile = sketch6
pocket4.setExpression("Length", "Params.pocket4_length")
pocket4.Reversed = True

# Sketch on YZ plane
sketch7 = body.newObject("Sketcher::SketchObject", "Sketch006")
sketch7.AttachmentSupport = (doc.getObject("YZ_Plane"), [""])
sketch7.MapMode = "FlatFace"
sketch7.AttachmentOffset = App.Placement(Vector(0, 0, 7.5), App.Rotation())
sketch7.addGeometry(Part.LineSegment(Vector(5, -5, 0), Vector(5, 5, 0)), False)
sketch7.addGeometry(Part.ArcOfCircle(Part.Circle(Vector(0, 0, 0), Vector(0, 0, 1), 7), math.radians(0), math.radians(45)), False)
sketch7.addGeometry(Part.ArcOfCircle(Part.Circle(Vector(0, 0, 0), Vector(0, 0, 1), 7), math.radians(-45), math.radians(0)), False)
sketch7.addGeometry(Part.LineSegment(Vector(-5, 5, 0), Vector(-5, -5, 0)), False)
sketch7.addGeometry(Part.ArcOfCircle(Part.Circle(Vector(0, 0, 0), Vector(0, 0, 1), 8), math.radians(135), math.radians(225)), False)
sketch7.addConstraint(Sketcher.Constraint("Coincident", 0, 2, 1, 2))
sketch7.addConstraint(Sketcher.Constraint("Tangent", 1, 1, 2, 2))
sketch7.addConstraint(Sketcher.Constraint("Coincident", 2, 1, 0, 1))
sketch7.addConstraint(Sketcher.Constraint("Coincident", 3, 1, 4, 1))
sketch7.addConstraint(Sketcher.Constraint("Coincident", 4, 2, 3, 2))
sketch7.addConstraint(Sketcher.Constraint("Vertical", 0))
sketch7.addConstraint(Sketcher.Constraint("Vertical", 3))
sketch7.addConstraint(Sketcher.Constraint("Coincident", 1, 3, -1, 1))
sketch7.addConstraint(Sketcher.Constraint("Coincident", 4, 3, -1, 1))
sketch7.addConstraint(Sketcher.Constraint("Equal", 1, 2))
sketch7.addConstraint(Sketcher.Constraint("Equal", 2, 4))
sketch7.addConstraint(Sketcher.Constraint("PointOnObject", 1, 1, -1))
sketch7.addConstraint(Sketcher.Constraint("Horizontal", 0, 2, 3, 1))
sketch7.addConstraint(Sketcher.Constraint("Radius", 1, 7.5))
sketch7.addConstraint(Sketcher.Constraint("DistanceY", 0, 1, 0, 2, 10.606602))
sketch7.setExpression("Constraints[13]", "Params.sketch7_radius")
pocket5 = body.newObject("PartDesign::Pocket", "Pocket004")
pocket5.Profile = sketch7
pocket5.setExpression("Length", "Params.pocket5_length")
pocket5.Reversed = True

# Sketch on YZ plane
sketch8 = body.newObject("Sketcher::SketchObject", "Sketch007")
sketch8.AttachmentSupport = (doc.getObject("YZ_Plane"), [""])
sketch8.MapMode = "FlatFace"
sketch8.addGeometry(Part.LineSegment(Vector(-2.5, 28.9, 0), Vector(-2.8, 32.4, 0)), False)
sketch8.addGeometry(Part.ArcOfCircle(Part.Circle(Vector(0, 0, 0), Vector(0, 0, 1), 32.5), math.radians(90), math.radians(95)), False)
sketch8.addGeometry(Part.ArcOfCircle(Part.Circle(Vector(0, 0, 0), Vector(0, 0, 1), 32.5), math.radians(85), math.radians(90)), False)
sketch8.addGeometry(Part.LineSegment(Vector(2.8, 32.4, 0), Vector(2.5, 28.9, 0)), False)
sketch8.addGeometry(Part.LineSegment(Vector(2.5, 28.9, 0), Vector(2.3, 25.9, 0)), False)
sketch8.addGeometry(Part.ArcOfCircle(Part.Circle(Vector(0, 0, 0), Vector(0, 0, 1), 26), math.radians(85), math.radians(90)), False)
sketch8.addGeometry(Part.ArcOfCircle(Part.Circle(Vector(0, 0, 0), Vector(0, 0, 1), 26), math.radians(90), math.radians(95)), False)
sketch8.addGeometry(Part.LineSegment(Vector(-2.3, 25.9, 0), Vector(-2.5, 28.9, 0)), False)
sketch8.addConstraint(Sketcher.Constraint("Coincident", 0, 2, 1, 2))
sketch8.addConstraint(Sketcher.Constraint("Tangent", 1, 1, 2, 2))
sketch8.addConstraint(Sketcher.Constraint("Coincident", 2, 1, 3, 1))
sketch8.addConstraint(Sketcher.Constraint("Coincident", 3, 2, 4, 1))
sketch8.addConstraint(Sketcher.Constraint("Coincident", 4, 2, 5, 1))
sketch8.addConstraint(Sketcher.Constraint("Tangent", 5, 2, 6, 1))
sketch8.addConstraint(Sketcher.Constraint("Coincident", 6, 2, 7, 1))
sketch8.addConstraint(Sketcher.Constraint("Coincident", 7, 2, 0, 1))
sketch8.addConstraint(Sketcher.Constraint("Coincident", 1, 3, -1, 1))
sketch8.addConstraint(Sketcher.Constraint("Coincident", 5, 3, -1, 1))
sketch8.addConstraint(Sketcher.Constraint("Equal", 1, 2))
sketch8.addConstraint(Sketcher.Constraint("Equal", 5, 6))
sketch8.addConstraint(Sketcher.Constraint("Symmetric", 3, 2, 7, 2, -2))
sketch8.addConstraint(Sketcher.Constraint("PointOnObject", 1, 1, -2))
sketch8.addConstraint(Sketcher.Constraint("PointOnObject", 5, 2, -2))
sketch8.addConstraint(Sketcher.Constraint("Parallel", 3, 4))
sketch8.addConstraint(Sketcher.Constraint("Parallel", 0, 7))
sketch8.addConstraint(Sketcher.Constraint("Horizontal", 0, 2, 2, 1))
sketch8.addConstraint(Sketcher.Constraint("Radius", 5, 26.0))
sketch8.addConstraint(Sketcher.Constraint("Radius", 1, 32.5))
sketch8.addConstraint(Sketcher.Constraint("Angle", 0, Q("95 deg")))
sketch8.addConstraint(Sketcher.Constraint("Distance", 4, 3.0))
sketch8.addConstraint(Sketcher.Constraint("DistanceX", 6, 2, 4, 2, 4.532099))
sketch8.setExpression("Constraints[18]", "Params.sketch8_radius")
sketch8.setExpression("Constraints[19]", "Params.sketch8_radius2")
sketch8.setExpression("Constraints[21]", "Params.sketch8_length")
pocket6 = body.newObject("PartDesign::Pocket", "Pocket005")
pocket6.Profile = sketch8
pocket6.setExpression("Length", "Params.pocket6_length")
pocket6.Reversed = True

doc.recompute()
